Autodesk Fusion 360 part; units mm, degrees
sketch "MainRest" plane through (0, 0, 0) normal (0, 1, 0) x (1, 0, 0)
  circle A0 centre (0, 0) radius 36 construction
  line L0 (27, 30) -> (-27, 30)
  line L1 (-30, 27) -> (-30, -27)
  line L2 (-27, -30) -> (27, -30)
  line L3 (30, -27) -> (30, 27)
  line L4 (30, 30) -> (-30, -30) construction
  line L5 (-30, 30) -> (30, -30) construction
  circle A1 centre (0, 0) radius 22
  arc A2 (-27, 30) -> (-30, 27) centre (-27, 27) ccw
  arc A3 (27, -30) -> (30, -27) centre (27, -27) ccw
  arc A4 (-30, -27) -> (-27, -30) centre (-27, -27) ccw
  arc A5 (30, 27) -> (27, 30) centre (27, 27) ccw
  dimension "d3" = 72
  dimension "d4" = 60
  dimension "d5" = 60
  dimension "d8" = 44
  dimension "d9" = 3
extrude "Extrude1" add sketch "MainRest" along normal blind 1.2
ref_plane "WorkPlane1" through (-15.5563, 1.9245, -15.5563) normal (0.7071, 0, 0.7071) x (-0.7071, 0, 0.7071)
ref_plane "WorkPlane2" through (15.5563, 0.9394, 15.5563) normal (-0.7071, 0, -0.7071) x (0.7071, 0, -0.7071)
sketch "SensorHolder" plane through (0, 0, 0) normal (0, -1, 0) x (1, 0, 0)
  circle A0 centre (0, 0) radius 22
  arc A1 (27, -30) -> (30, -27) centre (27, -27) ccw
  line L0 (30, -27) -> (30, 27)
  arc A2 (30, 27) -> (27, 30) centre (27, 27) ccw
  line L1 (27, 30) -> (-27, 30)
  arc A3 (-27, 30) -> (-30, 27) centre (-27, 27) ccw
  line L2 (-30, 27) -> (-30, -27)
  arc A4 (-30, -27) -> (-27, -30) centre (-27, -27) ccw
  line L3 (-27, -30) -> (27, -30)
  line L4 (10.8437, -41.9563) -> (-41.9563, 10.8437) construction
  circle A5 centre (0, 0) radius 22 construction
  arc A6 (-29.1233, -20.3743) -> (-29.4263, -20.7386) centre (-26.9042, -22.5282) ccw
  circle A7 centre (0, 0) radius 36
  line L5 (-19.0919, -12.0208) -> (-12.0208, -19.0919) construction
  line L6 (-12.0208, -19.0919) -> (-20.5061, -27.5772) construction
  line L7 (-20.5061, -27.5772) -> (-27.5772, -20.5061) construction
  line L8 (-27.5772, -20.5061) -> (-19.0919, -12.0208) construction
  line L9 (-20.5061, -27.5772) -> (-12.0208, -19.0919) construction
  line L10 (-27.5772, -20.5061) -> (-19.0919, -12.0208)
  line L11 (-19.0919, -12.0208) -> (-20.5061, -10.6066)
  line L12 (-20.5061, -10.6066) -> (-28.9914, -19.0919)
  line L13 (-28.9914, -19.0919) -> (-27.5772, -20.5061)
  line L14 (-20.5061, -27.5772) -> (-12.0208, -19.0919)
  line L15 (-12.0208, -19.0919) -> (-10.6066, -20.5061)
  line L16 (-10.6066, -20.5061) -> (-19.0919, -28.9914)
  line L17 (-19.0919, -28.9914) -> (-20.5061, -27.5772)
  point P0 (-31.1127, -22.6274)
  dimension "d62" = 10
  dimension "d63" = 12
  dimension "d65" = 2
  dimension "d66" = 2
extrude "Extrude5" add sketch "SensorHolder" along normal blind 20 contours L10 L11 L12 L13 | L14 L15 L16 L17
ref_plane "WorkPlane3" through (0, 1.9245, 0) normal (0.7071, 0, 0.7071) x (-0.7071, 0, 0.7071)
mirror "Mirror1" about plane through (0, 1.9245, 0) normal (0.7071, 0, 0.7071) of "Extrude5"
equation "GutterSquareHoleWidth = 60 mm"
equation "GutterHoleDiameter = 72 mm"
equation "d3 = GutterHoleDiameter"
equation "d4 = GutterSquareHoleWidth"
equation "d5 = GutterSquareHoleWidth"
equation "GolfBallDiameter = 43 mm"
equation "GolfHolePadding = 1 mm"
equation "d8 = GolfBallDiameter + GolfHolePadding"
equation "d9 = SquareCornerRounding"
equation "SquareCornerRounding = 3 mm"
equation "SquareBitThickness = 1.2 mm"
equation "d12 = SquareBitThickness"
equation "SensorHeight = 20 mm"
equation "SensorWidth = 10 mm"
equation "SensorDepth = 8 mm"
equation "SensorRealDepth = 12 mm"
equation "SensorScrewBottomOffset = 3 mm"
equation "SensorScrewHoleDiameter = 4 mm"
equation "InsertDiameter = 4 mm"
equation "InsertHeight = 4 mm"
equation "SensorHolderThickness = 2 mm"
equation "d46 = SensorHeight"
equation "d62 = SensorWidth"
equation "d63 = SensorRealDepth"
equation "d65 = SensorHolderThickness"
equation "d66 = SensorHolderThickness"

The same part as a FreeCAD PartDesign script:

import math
import FreeCAD as App
import Part
import Sketcher
Q = App.Units.Quantity

doc = App.newDocument("Part")
params = doc.addObject("Spreadsheet::Sheet", "Params")
for row, (alias, value) in enumerate([
    ("sketch1_diameter", "44 mm"),
    ("sketch1_radius", "3 mm"),
    ("sketch1_width", "54 mm"),
    ("pad1_length", "1.2 mm"),
    ("sketch2_length", "2 mm"),
    ("sketch2_length2", "12 mm"),
    ("pad2_length", "20 mm"),
], start=1):
    params.set(f"A{row}", alias)
    params.set(f"B{row}", "=" + value)
    params.setAlias(f"B{row}", alias)

body = doc.addObject("PartDesign::Body", "Body")

sketch1 = body.newObject("Sketcher::SketchObject", "Sketch")
sketch1.AttachmentSupport = (doc.getObject("XZ_Plane"), [""])
sketch1.MapMode = "FlatFace"
sketch1.addGeometry(Part.ArcOfCircle(Part.Circle(App.Vector(27, -27, 0), App.Vector(0, 0, 1), 3), math.radians(-90), math.radians(0)), False)
sketch1.addGeometry(Part.LineSegment(App.Vector(27, -30, 0), App.Vector(-27, -30, 0)), False)
sketch1.addGeometry(Part.ArcOfCircle(Part.Circle(App.Vector(-27, -27, 0), App.Vector(0, 0, 1), 3), math.radians(180), math.radians(270)), False)
sketch1.addGeometry(Part.LineSegment(App.Vector(-30, -27, 0), App.Vector(-30, 27, 0)), False)
sketch1.addGeometry(Part.ArcOfCircle(Part.Circle(App.Vector(-27, 27, 0), App.Vector(0, 0, 1), 3), math.radians(90), math.radians(180)), False)
sketch1.addGeometry(Part.LineSegment(App.Vector(-27, 30, 0), App.Vector(27, 30, 0)), False)
sketch1.addGeometry(Part.ArcOfCircle(Part.Circle(App.Vector(27, 27, 0), App.Vector(0, 0, 1), 3), math.radians(0), math.radians(90)), False)
sketch1.addGeometry(Part.LineSegment(App.Vector(30, 27, 0), App.Vector(30, -27, 0)), False)
sketch1.addGeometry(Part.Circle(App.Vector(0, 0, 0), App.Vector(0, 0, 1), 22), False)
sketch1.addConstraint(Sketcher.Constraint("Tangent", 0, 1, 1, 1))
sketch1.addConstraint(Sketcher.Constraint("Tangent", 1, 2, 2, 2))
sketch1.addConstraint(Sketcher.Constraint("Tangent", 2, 1, 3, 1))
sketch1.addConstraint(Sketcher.Constraint("Tangent", 3, 2, 4, 2))
sketch1.addConstraint(Sketcher.Constraint("Tangent", 4, 1, 5, 1))
sketch1.addConstraint(Sketcher.Constraint("Tangent", 5, 2, 6, 2))
sketch1.addConstraint(Sketcher.Constraint("Tangent", 6, 1, 7, 1))
sketch1.addConstraint(Sketcher.Constraint("Tangent", 7, 2, 0, 2))
sketch1.addConstraint(Sketcher.Constraint("Horizontal", 1))
sketch1.addConstraint(Sketcher.Constraint("Vertical", 3))
sketch1.addConstraint(Sketcher.Constraint("Horizontal", 5))
sketch1.addConstraint(Sketcher.Constraint("Vertical", 7))
sketch1.addConstraint(Sketcher.Constraint("Coincident", 8, 3, -1, 1))
sketch1.addConstraint(Sketcher.Constraint("Equal", 0, 2))
sketch1.addConstraint(Sketcher.Constraint("Equal", 2, 4))
sketch1.addConstraint(Sketcher.Constraint("Equal", 4, 6))
sketch1.addConstraint(Sketcher.Constraint("Symmetric", 0, 3, 4, 3, -1, 1))
sketch1.addConstraint(Sketcher.Constraint("Equal", 5, 3))
sketch1.addConstraint(Sketcher.Constraint("Diameter", 8, Q("44 mm")))
sketch1.addConstraint(Sketcher.Constraint("Radius", 0, Q("3 mm")))
sketch1.addConstraint(Sketcher.Constraint("DistanceX", 1, 2, 1, 1, Q("54 mm")))
sketch1.setExpression("Constraints[18]", "Params.sketch1_diameter")
sketch1.setExpression("Constraints[19]", "Params.sketch1_radius")
sketch1.setExpression("Constraints[20]", "Params.sketch1_width")
pad1 = body.newObject("PartDesign::Pad", "Pad")
pad1.Profile = sketch1
pad1.setExpression("Length", "Params.pad1_length")
pad1.Reversed = True

sketch2 = body.newObject("Sketcher::SketchObject", "Sketch001")
sketch2.AttachmentSupport = (doc.getObject("XZ_Plane"), [""])
sketch2.MapMode = "FlatFace"
sketch2.addGeometry(Part.LineSegment(App.Vector(-29, -19.1, 0), App.Vector(-27.6, -20.5, 0)), False)
sketch2.addGeometry(Part.LineSegment(App.Vector(-27.6, -20.5, 0), App.Vector(-19.1, -12, 0)), False)
sketch2.addGeometry(Part.LineSegment(App.Vector(-19.1, -12, 0), App.Vector(-20.5, -10.6, 0)), False)
sketch2.addGeometry(Part.LineSegment(App.Vector(-20.5, -10.6, 0), App.Vector(-29, -19.1, 0)), False)
sketch2.addGeometry(Part.LineSegment(App.Vector(-12, -19.1, 0), App.Vector(-20.5, -27.6, 0)), False)
sketch2.addGeometry(Part.LineSegment(App.Vector(-20.5, -27.6, 0), App.Vector(-19.1, -29, 0)), False)
sketch2.addGeometry(Part.LineSegment(App.Vector(-19.1, -29, 0), App.Vector(-10.6, -20.5, 0)), False)
sketch2.addGeometry(Part.LineSegment(App.Vector(-10.6, -20.5, 0), App.Vector(-12, -19.1, 0)), False)
sketch2.addConstraint(Sketcher.Constraint("Coincident", 0, 2, 1, 1))
sketch2.addConstraint(Sketcher.Constraint("Coincident", 1, 2, 2, 1))
sketch2.addConstraint(Sketcher.Constraint("Coincident", 2, 2, 3, 1))
sketch2.addConstraint(Sketcher.Constraint("Coincident", 3, 2, 0, 1))
sketch2.addConstraint(Sketcher.Constraint("Coincident", 4, 2, 5, 1))
sketch2.addConstraint(Sketcher.Constraint("Coincident", 5, 2, 6, 1))
sketch2.addConstraint(Sketcher.Constraint("Coincident", 6, 2, 7, 1))
sketch2.addConstraint(Sketcher.Constraint("Coincident", 7, 2, 4, 1))
sketch2.addConstraint(Sketcher.Constraint("Perpendicular", 0, 1))
sketch2.addConstraint(Sketcher.Constraint("Perpendicular", 1, 2))
sketch2.addConstraint(Sketcher.Constraint("Perpendicular", 2, 3))
sketch2.addConstraint(Sketcher.Constraint("Parallel", 3, 4))
sketch2.addConstraint(Sketcher.Constraint("Perpendicular", 4, 5))
sketch2.addConstraint(Sketcher.Constraint("Perpendicular", 5, 6))
sketch2.addConstraint(Sketcher.Constraint("Perpendicular", 6, 7))
sketch2.addConstraint(Sketcher.Constraint("Horizontal", 0, 2, 6, 2))
sketch2.addConstraint(Sketcher.Constraint("Horizontal", 3, 2, 7, 2))
sketch2.addConstraint(Sketcher.Constraint("Vertical", 2, 2, 4, 2))
sketch2.addConstraint(Sketcher.Constraint("Equal", 3, 4))
sketch2.addConstraint(Sketcher.Constraint("Distance", 0, Q("2 mm")))
sketch2.addConstraint(Sketcher.Constraint("Distance", 1, Q("12 mm")))
sketch2.addConstraint(Sketcher.Constraint("Angle", 0, Q("-45 deg")))
sketch2.addConstraint(Sketcher.Constraint("DistanceY", 0, 2, -1, 1, Q("20.506 mm")))
sketch2.addConstraint(Sketcher.Constraint("DistanceX", 1, 2, -1, 1, Q("19.092 mm")))
sketch2.setExpression("Constraints[19]", "Params.sketch2_length")
sketch2.setExpression("Constraints[20]", "Params.sketch2_length2")
pad2 = body.newObject("PartDesign::Pad", "Pad001")
pad2.Profile = sketch2
pad2.setExpression("Length", "Params.pad2_length")
doc.recompute()

datumplane = body.newObject("PartDesign::Plane", "DatumPlane")
datumplane.Placement = App.Placement(App.Vector(0, 0, 0), App.Rotation(App.Vector(0.707106781, 0, -0.707106781), App.Vector(0, -1, 0), App.Vector(-0.707106781, 0, -0.707106781), "ZXY"))
mirrored = body.newObject("PartDesign::Mirrored", "Mirrored")
mirrored.Originals = [pad2]
mirrored.MirrorPlane = (datumplane, [""])
body.Tip = mirrored

doc.recompute()
